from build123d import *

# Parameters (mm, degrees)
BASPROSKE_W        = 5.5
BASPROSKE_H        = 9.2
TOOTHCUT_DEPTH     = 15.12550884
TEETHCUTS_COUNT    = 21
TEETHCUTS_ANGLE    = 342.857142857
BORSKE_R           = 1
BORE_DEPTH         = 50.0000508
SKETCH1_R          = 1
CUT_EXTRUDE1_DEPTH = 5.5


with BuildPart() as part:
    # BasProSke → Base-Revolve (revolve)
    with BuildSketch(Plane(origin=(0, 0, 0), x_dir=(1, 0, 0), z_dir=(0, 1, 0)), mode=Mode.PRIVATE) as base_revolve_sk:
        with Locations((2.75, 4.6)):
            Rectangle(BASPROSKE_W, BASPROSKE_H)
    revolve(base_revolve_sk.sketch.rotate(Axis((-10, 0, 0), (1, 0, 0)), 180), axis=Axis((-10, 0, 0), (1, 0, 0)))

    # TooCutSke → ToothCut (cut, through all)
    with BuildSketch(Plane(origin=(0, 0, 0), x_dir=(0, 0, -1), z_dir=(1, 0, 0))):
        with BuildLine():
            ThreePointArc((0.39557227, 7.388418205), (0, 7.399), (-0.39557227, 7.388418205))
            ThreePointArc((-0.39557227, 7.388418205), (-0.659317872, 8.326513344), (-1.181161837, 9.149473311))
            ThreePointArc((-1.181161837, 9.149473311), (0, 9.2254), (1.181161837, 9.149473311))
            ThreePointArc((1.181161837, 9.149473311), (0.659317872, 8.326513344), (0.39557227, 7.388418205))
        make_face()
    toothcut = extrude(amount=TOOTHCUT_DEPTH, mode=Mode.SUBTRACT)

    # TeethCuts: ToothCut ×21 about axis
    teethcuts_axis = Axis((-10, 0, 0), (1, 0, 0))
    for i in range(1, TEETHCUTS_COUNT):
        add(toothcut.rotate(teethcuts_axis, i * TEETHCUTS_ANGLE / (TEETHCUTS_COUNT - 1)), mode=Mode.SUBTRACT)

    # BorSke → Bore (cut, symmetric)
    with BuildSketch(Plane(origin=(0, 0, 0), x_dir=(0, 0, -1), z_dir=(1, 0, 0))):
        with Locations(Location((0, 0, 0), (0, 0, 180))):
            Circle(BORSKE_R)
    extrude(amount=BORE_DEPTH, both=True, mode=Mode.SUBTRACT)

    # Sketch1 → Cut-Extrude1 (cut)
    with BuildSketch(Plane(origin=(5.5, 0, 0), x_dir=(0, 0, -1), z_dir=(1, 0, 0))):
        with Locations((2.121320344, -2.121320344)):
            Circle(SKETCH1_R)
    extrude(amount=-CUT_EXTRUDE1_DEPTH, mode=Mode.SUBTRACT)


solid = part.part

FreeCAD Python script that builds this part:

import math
import FreeCAD as App
import Part
import Sketcher

V = App.Vector

doc = App.newDocument("Part")
body = doc.addObject("PartDesign::Body", "Body")

sketch1 = body.newObject("Sketcher::SketchObject", "Sketch")
sketch1.AttachmentSupport = (doc.getObject("XZ_Plane"), [""])
sketch1.MapMode = "FlatFace"
sketch1.addGeometry([
    Part.LineSegment(V(0, -9, 0), V(0, 0, 0)),
    Part.LineSegment(V(0, 0, 0), V(6, 0, 0)),
    Part.LineSegment(V(6, 0, 0), V(6, -9, 0)),
    Part.LineSegment(V(6, -9, 0), V(0, -9, 0)),
], False)
sketch1.addConstraint([
    Sketcher.Constraint("Coincident", 0, 2, 1, 1),
    Sketcher.Constraint("Coincident", 1, 2, 2, 1),
    Sketcher.Constraint("Coincident", 2, 2, 3, 1),
    Sketcher.Constraint("Coincident", 3, 2, 0, 1),
    Sketcher.Constraint("Vertical", 0),
    Sketcher.Constraint("Horizontal", 1),
    Sketcher.Constraint("Vertical", 2),
    Sketcher.Constraint("Horizontal", 3),
    Sketcher.Constraint("Coincident", 0, 2, -1, 1),
    Sketcher.Constraint("DistanceX", 1, 1, 1, 2, 5.5),
    Sketcher.Constraint("DistanceY", 0, 1, 0, 2, 9.2),
])
revolution = body.newObject("PartDesign::Revolution", "Revolution")
revolution.Profile = sketch1
revolution.ReferenceAxis = (sketch1, ["H_Axis"])
revolution.Angle = 360

sketch2 = body.newObject("Sketcher::SketchObject", "Sketch001")
sketch2.AttachmentSupport = (doc.getObject("YZ_Plane"), [""])
sketch2.MapMode = "FlatFace"
sketch2.addGeometry([
    Part.ArcOfCircle(Part.Circle(V(0, 0, 0), V(0, 0, 1), 7.4), math.radians(-3.06), math.radians(3.06)),
    Part.ArcOfCircle(Part.Circle(V(7, -3.7, 0), V(0, 0, 1), 3.4), math.radians(49), math.radians(83)),
    Part.ArcOfCircle(Part.Circle(V(0, 0, 0), V(0, 0, 1), 9.2), math.radians(-7.36), math.radians(7.36)),
    Part.ArcOfCircle(Part.Circle(V(7, 3.7, 0), V(0, 0, 1), 3.4), math.radians(-83), math.radians(-49)),
], False)
sketch2.addConstraint([
    Sketcher.Constraint("Coincident", 0, 1, 1, 2),
    Sketcher.Constraint("Coincident", 1, 1, 2, 1),
    Sketcher.Constraint("Coincident", 2, 2, 3, 2),
    Sketcher.Constraint("Coincident", 3, 1, 0, 2),
    Sketcher.Constraint("Coincident", 0, 3, -1, 1),
    Sketcher.Constraint("Coincident", 2, 3, -1, 1),
    Sketcher.Constraint("Equal", 1, 3),
    Sketcher.Constraint("Symmetric", 1, 3, 3, 3, -1),
    Sketcher.Constraint("Radius", 1, 3.36),
    Sketcher.Constraint("Radius", 0, 7.399),
    Sketcher.Constraint("Radius", 2, 9.2254),
    Sketcher.Constraint("DistanceX", 1, 3, 1, 1, 2.191801),
    Sketcher.Constraint("DistanceX", -1, 1, 0, 1, 7.388418),
])
pocket1 = body.newObject("PartDesign::Pocket", "Pocket")
pocket1.Profile = sketch2
pocket1.Type = "ThroughAll"
pocket1.Reversed = True
doc.recompute()

polarpattern = body.newObject("PartDesign::PolarPattern", "PolarPattern")
polarpattern.Originals = [pocket1]
polarpattern.Axis = (doc.getObject("X_Axis"), [""])
polarpattern.Angle = 360
polarpattern.Occurrences = 21
body.Tip = polarpattern

sketch3 = body.newObject("Sketcher::SketchObject", "Sketch002")
sketch3.AttachmentSupport = (doc.getObject("YZ_Plane"), [""])
sketch3.MapMode = "FlatFace"
sketch3.addGeometry(Part.Circle(V(0, 0, 0), V(0, 0, 1), 1), False)
sketch3.addConstraint([
    Sketcher.Constraint("Coincident", 0, 3, -1, 1),
    Sketcher.Constraint("Diameter", 0, 2.0),
])
pocket2 = body.newObject("PartDesign::Pocket", "Pocket001")
pocket2.Profile = sketch3
pocket2.Length = 100.000102
pocket2.Midplane = True

sketch4 = body.newObject("Sketcher::SketchObject", "Sketch003")
sketch4.AttachmentSupport = (doc.getObject("YZ_Plane"), [""])
sketch4.MapMode = "FlatFace"
sketch4.AttachmentOffset = App.Placement(V(0, 0, 5.5), App.Rotation())
sketch4.addGeometry(Part.Circle(V(-2.1, -2.1, 0), V(0, 0, 1), 1), False)
sketch4.addConstraint([
    Sketcher.Constraint("Diameter", 0, 2.0),
    Sketcher.Constraint("DistanceX", 0, 3, -1, 1, 2.12132),
    Sketcher.Constraint("DistanceY", 0, 3, -1, 1, 2.12132),
])
pocket3 = body.newObject("PartDesign::Pocket", "Pocket002")
pocket3.Profile = sketch4
pocket3.Length = 5.5

doc.recompute()
